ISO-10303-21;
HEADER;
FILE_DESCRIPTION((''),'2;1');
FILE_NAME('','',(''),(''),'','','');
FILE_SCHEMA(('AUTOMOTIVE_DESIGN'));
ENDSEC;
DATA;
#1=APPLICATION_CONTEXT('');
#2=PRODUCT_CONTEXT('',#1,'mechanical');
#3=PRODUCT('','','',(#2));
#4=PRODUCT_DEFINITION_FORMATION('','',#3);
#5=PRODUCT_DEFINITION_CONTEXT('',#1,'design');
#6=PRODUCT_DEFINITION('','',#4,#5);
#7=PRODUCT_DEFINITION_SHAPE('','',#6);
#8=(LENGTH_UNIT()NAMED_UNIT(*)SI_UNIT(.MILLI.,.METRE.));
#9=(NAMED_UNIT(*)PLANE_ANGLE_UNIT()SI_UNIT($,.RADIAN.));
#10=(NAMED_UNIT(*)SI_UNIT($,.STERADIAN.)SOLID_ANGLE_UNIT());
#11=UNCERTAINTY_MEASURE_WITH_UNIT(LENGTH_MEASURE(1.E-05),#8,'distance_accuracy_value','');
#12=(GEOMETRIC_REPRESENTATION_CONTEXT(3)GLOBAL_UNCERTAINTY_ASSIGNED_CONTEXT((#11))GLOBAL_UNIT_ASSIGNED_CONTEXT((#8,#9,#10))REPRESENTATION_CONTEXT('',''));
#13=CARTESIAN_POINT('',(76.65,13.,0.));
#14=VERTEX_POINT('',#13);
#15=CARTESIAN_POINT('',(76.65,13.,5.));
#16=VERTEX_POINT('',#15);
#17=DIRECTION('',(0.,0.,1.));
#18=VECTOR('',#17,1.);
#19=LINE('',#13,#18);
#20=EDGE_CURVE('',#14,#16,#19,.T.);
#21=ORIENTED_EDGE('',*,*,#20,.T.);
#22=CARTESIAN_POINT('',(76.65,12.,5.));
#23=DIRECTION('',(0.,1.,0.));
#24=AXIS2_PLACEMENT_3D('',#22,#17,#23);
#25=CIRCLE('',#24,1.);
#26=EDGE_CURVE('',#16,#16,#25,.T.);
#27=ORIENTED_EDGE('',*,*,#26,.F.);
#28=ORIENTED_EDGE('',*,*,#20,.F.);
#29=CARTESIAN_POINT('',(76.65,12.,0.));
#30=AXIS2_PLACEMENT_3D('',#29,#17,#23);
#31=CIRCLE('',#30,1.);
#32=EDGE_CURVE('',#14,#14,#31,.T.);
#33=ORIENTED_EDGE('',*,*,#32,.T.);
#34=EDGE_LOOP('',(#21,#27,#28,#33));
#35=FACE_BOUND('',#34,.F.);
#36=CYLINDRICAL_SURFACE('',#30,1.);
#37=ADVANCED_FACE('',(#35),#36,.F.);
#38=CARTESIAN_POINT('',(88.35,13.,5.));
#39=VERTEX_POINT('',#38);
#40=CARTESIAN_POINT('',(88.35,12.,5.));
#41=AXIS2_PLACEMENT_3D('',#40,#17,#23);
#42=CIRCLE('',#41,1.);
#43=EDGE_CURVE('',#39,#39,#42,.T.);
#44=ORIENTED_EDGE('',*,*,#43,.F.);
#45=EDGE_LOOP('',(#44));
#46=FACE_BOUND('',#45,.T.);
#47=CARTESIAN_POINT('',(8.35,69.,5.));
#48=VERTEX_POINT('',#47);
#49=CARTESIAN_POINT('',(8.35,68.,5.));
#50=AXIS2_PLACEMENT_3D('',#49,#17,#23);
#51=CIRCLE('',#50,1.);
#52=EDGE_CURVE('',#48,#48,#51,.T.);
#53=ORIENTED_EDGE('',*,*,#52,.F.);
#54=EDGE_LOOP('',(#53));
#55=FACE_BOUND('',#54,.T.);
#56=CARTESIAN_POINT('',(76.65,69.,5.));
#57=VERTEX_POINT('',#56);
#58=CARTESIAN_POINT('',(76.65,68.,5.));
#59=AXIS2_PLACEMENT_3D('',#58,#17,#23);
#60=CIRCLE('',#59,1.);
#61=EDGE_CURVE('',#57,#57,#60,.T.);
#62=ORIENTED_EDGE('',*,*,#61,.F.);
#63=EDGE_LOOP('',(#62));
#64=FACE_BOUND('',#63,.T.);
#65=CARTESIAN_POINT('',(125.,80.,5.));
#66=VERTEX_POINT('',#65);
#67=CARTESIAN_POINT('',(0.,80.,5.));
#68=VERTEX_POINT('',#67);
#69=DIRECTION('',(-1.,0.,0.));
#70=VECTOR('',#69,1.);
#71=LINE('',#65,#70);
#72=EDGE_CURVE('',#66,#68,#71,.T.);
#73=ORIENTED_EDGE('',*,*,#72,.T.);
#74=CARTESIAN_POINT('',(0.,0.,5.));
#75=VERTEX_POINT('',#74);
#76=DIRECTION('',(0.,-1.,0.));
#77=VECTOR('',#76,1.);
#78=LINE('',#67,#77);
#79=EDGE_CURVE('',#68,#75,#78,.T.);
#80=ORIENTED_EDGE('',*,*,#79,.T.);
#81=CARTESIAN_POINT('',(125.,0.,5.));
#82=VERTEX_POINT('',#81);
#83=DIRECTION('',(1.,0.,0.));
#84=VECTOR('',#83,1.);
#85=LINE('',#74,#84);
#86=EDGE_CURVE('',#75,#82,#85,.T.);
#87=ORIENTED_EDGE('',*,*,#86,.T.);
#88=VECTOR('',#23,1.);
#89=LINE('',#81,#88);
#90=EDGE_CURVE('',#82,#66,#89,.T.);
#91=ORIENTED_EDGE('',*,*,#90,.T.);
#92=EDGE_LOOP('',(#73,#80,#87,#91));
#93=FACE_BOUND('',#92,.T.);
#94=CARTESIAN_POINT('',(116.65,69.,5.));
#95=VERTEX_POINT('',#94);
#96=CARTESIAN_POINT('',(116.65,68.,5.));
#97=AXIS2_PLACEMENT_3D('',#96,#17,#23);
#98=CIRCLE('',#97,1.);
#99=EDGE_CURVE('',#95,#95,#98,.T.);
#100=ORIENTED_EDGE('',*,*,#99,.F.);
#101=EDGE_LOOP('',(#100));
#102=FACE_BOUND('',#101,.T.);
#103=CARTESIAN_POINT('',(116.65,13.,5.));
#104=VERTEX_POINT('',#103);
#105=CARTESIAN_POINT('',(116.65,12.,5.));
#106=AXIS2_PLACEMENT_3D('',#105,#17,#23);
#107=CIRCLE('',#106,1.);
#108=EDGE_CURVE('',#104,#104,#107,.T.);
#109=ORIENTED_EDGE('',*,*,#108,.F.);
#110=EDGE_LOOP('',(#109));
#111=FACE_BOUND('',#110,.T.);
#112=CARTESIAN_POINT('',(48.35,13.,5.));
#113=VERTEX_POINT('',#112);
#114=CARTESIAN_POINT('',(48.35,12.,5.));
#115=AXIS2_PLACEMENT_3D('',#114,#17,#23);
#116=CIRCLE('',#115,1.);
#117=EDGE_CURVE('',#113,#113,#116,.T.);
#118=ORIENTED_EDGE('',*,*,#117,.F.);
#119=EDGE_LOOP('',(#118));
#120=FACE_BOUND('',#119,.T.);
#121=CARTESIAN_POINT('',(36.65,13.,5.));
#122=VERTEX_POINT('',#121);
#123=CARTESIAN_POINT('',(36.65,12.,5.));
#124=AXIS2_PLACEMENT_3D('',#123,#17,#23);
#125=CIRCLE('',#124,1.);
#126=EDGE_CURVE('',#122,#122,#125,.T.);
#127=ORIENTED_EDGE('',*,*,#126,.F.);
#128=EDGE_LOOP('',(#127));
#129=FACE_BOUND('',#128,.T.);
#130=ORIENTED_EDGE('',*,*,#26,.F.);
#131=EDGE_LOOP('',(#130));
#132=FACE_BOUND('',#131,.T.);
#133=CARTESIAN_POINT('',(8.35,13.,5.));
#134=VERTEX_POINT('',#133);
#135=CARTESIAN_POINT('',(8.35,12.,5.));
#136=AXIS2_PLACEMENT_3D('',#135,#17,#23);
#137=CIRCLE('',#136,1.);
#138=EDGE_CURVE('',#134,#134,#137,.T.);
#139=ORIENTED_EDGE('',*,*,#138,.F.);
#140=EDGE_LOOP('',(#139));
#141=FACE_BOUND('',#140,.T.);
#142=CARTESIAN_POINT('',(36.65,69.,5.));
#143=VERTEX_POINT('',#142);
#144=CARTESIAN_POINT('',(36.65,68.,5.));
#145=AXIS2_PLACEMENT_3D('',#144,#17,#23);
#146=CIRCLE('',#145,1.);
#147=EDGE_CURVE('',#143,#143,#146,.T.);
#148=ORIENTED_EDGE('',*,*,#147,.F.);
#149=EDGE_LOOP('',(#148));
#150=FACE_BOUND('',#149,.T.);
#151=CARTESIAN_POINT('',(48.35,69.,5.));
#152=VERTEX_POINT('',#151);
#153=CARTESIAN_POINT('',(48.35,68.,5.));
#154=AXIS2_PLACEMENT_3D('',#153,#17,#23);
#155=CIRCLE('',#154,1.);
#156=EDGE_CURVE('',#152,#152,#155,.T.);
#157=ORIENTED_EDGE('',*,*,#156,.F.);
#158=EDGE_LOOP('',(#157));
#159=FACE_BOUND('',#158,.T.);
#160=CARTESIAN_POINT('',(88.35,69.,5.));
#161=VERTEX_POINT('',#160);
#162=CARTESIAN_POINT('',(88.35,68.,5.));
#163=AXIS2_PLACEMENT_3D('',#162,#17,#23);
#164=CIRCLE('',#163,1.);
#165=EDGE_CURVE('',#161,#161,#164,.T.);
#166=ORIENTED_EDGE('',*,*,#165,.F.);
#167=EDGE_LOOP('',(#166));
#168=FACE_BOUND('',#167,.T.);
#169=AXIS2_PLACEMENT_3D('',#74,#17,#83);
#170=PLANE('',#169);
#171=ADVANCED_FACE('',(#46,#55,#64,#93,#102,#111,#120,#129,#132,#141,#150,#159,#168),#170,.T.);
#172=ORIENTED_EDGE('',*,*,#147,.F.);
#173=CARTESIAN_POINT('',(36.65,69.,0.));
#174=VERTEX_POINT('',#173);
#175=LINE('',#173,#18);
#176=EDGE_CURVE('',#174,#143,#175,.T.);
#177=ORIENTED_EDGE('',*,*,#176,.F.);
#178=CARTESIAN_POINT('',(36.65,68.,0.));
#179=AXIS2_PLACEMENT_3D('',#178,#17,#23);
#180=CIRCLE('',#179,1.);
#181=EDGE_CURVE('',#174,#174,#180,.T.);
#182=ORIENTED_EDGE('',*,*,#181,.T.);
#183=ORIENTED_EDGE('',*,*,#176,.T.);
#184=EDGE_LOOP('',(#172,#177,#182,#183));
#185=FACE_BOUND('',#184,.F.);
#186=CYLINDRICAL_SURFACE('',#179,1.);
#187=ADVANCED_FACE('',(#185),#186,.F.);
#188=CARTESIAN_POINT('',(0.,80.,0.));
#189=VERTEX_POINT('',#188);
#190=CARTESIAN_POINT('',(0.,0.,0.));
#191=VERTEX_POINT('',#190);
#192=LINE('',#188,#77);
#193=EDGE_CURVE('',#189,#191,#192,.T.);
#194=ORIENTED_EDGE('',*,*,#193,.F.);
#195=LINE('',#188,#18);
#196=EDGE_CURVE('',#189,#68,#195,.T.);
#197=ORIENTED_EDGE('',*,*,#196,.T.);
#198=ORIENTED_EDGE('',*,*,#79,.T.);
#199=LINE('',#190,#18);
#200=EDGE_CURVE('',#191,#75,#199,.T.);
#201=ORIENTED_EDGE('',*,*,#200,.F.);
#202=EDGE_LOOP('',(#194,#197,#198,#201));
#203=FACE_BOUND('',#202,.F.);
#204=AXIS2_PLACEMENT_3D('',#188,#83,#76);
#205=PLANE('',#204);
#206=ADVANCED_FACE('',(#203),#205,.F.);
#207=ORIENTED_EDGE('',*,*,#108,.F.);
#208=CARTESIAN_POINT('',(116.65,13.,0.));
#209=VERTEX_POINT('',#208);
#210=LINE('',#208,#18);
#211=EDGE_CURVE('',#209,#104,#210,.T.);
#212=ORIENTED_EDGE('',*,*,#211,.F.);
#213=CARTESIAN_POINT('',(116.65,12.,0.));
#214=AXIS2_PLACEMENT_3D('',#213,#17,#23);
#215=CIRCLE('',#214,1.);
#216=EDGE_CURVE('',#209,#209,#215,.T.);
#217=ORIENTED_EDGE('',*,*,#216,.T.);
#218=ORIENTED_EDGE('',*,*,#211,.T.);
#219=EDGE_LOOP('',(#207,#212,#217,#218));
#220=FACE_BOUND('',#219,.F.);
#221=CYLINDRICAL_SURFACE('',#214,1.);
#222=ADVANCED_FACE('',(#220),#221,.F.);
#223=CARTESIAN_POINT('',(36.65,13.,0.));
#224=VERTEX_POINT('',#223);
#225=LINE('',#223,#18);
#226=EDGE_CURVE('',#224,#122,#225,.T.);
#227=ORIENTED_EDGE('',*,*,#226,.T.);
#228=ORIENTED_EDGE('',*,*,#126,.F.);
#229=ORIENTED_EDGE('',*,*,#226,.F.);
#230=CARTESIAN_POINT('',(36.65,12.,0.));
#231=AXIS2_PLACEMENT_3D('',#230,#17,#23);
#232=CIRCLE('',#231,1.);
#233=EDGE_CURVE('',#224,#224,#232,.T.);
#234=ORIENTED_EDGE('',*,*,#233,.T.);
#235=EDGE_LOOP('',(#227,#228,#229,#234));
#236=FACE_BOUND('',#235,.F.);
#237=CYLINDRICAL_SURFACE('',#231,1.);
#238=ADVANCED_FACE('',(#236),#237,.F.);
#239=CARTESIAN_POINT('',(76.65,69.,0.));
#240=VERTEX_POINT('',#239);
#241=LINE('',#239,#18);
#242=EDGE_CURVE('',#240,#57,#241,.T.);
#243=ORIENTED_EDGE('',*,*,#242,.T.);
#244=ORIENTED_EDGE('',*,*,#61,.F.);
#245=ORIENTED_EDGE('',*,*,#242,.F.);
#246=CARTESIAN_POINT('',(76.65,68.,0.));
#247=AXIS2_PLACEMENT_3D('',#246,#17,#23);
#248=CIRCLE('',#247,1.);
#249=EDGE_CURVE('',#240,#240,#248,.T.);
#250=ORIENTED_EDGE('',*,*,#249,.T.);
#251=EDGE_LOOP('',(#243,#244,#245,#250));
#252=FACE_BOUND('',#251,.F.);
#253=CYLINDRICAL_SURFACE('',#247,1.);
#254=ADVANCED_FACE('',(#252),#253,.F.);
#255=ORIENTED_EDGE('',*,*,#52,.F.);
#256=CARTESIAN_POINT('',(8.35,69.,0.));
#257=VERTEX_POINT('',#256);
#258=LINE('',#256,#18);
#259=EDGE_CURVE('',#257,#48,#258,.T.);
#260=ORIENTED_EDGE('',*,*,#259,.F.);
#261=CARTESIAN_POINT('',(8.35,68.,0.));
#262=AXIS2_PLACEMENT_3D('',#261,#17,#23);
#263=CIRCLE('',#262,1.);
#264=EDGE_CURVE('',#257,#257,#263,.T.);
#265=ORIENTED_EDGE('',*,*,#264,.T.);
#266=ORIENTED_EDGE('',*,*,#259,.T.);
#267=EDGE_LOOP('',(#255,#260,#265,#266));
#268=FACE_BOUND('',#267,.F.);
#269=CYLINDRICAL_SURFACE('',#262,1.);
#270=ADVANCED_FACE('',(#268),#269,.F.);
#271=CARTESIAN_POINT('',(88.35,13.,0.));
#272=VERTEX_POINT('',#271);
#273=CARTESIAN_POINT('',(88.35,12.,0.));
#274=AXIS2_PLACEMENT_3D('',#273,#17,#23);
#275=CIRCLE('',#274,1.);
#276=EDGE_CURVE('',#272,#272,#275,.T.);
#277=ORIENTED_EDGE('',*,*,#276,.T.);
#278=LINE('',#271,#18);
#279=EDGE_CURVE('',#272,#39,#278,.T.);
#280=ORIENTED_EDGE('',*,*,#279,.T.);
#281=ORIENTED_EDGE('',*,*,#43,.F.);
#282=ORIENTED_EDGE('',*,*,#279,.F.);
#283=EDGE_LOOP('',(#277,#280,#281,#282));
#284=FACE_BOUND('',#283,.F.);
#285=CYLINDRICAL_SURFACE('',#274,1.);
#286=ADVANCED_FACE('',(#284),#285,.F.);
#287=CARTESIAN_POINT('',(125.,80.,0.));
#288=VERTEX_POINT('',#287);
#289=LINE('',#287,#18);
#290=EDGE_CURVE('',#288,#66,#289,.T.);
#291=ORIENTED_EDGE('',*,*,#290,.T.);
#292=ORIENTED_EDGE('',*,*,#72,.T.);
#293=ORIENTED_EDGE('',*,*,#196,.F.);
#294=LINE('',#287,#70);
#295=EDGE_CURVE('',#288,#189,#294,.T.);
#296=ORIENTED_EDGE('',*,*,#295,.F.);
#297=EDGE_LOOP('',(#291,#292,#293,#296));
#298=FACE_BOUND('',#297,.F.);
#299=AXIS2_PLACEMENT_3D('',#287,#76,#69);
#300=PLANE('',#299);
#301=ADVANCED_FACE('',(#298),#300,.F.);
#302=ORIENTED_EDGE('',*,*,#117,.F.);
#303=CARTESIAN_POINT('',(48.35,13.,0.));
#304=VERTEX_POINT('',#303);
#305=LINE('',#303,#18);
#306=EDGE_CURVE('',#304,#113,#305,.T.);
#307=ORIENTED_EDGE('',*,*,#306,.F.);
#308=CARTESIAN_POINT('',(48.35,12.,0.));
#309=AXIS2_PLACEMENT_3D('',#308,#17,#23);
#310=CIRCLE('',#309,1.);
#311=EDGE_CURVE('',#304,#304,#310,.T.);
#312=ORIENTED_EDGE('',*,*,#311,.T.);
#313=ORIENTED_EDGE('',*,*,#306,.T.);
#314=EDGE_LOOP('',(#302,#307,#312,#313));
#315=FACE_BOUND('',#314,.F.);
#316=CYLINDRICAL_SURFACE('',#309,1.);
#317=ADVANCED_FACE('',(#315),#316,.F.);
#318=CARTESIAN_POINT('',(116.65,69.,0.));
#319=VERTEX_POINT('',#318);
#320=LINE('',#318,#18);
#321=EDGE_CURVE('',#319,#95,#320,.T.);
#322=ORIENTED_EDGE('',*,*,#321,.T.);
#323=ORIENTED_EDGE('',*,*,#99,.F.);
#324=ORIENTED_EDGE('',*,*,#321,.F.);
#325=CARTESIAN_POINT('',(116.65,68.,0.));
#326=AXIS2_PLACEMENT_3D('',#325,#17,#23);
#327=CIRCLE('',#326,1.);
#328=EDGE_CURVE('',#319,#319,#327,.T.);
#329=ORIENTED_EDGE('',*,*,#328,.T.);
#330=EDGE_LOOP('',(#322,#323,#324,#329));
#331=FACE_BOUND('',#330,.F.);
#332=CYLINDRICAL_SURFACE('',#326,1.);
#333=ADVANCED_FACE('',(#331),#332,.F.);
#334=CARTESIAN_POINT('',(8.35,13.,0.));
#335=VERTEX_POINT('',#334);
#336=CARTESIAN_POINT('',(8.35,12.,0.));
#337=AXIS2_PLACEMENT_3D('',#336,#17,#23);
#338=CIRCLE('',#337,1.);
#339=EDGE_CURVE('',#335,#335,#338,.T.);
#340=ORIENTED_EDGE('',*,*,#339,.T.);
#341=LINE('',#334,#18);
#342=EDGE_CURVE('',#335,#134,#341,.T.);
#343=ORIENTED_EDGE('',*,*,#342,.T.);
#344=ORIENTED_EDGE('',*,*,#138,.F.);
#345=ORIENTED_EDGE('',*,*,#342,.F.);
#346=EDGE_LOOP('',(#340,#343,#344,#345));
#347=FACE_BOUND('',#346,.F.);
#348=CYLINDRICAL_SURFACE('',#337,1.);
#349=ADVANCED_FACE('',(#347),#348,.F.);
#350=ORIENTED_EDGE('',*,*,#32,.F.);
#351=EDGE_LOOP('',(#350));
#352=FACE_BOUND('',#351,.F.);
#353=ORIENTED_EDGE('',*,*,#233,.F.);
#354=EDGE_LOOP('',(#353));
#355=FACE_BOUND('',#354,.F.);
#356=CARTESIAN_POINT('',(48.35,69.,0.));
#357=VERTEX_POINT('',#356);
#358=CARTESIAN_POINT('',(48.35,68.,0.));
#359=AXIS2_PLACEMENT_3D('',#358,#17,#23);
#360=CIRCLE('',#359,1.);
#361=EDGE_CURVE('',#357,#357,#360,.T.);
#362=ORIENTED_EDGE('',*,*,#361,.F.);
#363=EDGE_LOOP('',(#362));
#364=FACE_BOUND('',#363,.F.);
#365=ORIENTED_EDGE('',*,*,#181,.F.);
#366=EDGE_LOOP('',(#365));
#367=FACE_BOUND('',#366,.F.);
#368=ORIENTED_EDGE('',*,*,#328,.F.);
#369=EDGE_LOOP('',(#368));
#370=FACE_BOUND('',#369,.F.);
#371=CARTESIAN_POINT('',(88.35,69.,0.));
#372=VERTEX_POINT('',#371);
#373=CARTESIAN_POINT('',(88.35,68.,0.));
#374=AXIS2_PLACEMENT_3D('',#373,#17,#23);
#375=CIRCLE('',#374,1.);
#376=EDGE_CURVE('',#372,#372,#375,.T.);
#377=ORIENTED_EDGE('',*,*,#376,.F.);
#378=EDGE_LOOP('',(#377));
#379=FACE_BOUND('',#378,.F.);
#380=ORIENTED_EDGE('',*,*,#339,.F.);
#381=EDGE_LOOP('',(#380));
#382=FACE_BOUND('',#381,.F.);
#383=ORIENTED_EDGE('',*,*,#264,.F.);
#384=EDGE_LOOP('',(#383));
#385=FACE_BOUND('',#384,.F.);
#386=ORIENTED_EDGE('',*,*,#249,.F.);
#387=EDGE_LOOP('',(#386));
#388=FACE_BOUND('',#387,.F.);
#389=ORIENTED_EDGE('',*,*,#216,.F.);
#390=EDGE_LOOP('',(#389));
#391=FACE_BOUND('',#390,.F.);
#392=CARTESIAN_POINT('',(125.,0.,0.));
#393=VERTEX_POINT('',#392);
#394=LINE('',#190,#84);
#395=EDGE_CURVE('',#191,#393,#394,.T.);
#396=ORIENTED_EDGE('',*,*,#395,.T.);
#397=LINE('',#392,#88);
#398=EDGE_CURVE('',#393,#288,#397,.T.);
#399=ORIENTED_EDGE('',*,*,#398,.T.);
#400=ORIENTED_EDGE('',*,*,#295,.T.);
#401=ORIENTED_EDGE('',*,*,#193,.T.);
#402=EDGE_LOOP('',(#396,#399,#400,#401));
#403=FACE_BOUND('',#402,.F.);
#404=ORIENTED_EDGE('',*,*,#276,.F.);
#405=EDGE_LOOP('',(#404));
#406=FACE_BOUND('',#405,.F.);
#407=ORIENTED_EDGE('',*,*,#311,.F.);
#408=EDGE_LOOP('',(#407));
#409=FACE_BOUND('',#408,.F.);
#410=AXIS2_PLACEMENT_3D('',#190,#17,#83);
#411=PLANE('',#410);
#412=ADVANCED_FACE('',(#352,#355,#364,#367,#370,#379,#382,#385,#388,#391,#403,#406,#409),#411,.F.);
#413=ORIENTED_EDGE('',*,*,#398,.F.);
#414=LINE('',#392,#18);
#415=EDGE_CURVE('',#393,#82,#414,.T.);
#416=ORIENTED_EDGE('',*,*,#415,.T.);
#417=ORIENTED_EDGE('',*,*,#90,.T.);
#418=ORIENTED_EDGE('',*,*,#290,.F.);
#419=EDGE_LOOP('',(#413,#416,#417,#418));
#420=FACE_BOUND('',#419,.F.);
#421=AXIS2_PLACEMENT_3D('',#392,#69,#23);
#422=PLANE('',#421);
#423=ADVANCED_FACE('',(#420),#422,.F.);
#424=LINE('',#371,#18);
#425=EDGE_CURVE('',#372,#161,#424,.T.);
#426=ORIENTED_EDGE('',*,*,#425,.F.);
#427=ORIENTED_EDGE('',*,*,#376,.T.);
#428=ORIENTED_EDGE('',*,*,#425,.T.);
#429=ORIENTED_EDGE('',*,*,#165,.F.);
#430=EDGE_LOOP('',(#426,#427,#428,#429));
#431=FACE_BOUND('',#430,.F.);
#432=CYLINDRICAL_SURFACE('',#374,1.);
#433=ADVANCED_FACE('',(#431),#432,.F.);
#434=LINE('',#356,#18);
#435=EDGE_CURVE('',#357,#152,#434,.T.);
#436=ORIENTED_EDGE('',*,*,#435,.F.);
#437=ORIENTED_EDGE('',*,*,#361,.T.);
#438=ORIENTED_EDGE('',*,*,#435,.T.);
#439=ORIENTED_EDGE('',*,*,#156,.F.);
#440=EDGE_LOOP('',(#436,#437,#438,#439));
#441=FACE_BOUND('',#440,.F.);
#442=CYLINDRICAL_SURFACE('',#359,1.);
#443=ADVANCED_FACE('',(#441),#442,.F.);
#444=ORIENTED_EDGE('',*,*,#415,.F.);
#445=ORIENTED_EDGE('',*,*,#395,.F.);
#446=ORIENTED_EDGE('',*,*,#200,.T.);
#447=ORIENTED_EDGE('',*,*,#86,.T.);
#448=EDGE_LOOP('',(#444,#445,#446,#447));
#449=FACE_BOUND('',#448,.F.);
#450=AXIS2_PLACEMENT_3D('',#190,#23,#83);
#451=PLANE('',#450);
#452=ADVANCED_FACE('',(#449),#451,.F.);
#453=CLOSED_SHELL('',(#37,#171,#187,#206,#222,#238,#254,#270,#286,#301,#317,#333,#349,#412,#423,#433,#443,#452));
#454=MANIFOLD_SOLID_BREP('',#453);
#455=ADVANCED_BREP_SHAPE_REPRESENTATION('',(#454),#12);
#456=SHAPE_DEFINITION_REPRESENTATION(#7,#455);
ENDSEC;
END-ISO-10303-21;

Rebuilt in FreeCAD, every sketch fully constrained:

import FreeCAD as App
import Part
import Sketcher

V = App.Vector


def add_polygon(sketch, points):
    """Adds a closed chain of lines whose ends are joined by coincident constraints."""
    first, n = sketch.GeometryCount, len(points)
    for a, b in zip(points, points[1:] + points[:1]):
        sketch.addGeometry(Part.LineSegment(App.Vector(*a, 0), App.Vector(*b, 0)), False)
    for i in range(n):
        sketch.addConstraint(Sketcher.Constraint("Coincident", first + i, 2, first + (i + 1) % n, 1))

doc = App.newDocument("Part")
body = doc.addObject("PartDesign::Body", "Body")

# Sketch on XY plane
sketch1 = doc.addObject("Sketcher::SketchObject", "Sketch")
body.addObject(sketch1)
sketch1.AttachmentSupport = (doc.XY_Plane, [""])
sketch1.MapMode = "FlatFace"
add_polygon(sketch1, [(0, 80), (0, 0), (125, 0), (125, 80)])  # lines 0-3
sketch1.addConstraint(Sketcher.Constraint("Vertical", 0))
sketch1.addConstraint(Sketcher.Constraint("Horizontal", 1))
sketch1.addConstraint(Sketcher.Constraint("Vertical", 2))
sketch1.addConstraint(Sketcher.Constraint("Horizontal", 3))
sketch1.addConstraint(Sketcher.Constraint("Coincident", 0, 2, -1, 1))
sketch1.addConstraint(Sketcher.Constraint("DistanceX", 1, 1, 1, 2, 125.0))
sketch1.addConstraint(Sketcher.Constraint("DistanceY", 0, 2, 0, 1, 80.0))
pad1 = doc.addObject("PartDesign::Pad", "Pad")
body.addObject(pad1)
pad1.Profile = sketch1
pad1.Length = 5

# Sketch on XY plane
sketch2 = doc.addObject("Sketcher::SketchObject", "Sketch001")
body.addObject(sketch2)
sketch2.AttachmentSupport = (doc.XY_Plane, [""])
sketch2.MapMode = "FlatFace"
sketch2.addGeometry(Part.Circle(V(8.3, 68, 0), V(0, 0, 1), 1), False)
sketch2.addGeometry(Part.Circle(V(36.6, 68, 0), V(0, 0, 1), 1), False)
sketch2.addGeometry(Part.Circle(V(8.3, 12, 0), V(0, 0, 1), 1), False)
sketch2.addGeometry(Part.Circle(V(36.6, 12, 0), V(0, 0, 1), 1), False)
sketch2.addGeometry(Part.Circle(V(76.7, 12, 0), V(0, 0, 1), 1), False)
sketch2.addGeometry(Part.Circle(V(76.7, 68, 0), V(0, 0, 1), 1), False)
sketch2.addGeometry(Part.Circle(V(48.4, 68, 0), V(0, 0, 1), 1), False)
sketch2.addGeometry(Part.Circle(V(48.4, 12, 0), V(0, 0, 1), 1), False)
sketch2.addGeometry(Part.Circle(V(116.7, 12, 0), V(0, 0, 1), 1), False)
sketch2.addGeometry(Part.Circle(V(116.7, 68, 0), V(0, 0, 1), 1), False)
sketch2.addGeometry(Part.Circle(V(88.3, 12, 0), V(0, 0, 1), 1), False)
sketch2.addGeometry(Part.Circle(V(88.3, 68, 0), V(0, 0, 1), 1), False)
sketch2.addConstraint(Sketcher.Constraint("Equal", 0, 1))
sketch2.addConstraint(Sketcher.Constraint("Equal", 1, 2))
sketch2.addConstraint(Sketcher.Constraint("Equal", 2, 3))
sketch2.addConstraint(Sketcher.Constraint("Equal", 3, 4))
sketch2.addConstraint(Sketcher.Constraint("Equal", 4, 5))
sketch2.addConstraint(Sketcher.Constraint("Equal", 5, 6))
sketch2.addConstraint(Sketcher.Constraint("Equal", 6, 7))
sketch2.addConstraint(Sketcher.Constraint("Equal", 7, 8))
sketch2.addConstraint(Sketcher.Constraint("Equal", 8, 9))
sketch2.addConstraint(Sketcher.Constraint("Equal", 9, 10))
sketch2.addConstraint(Sketcher.Constraint("Equal", 10, 11))
sketch2.addConstraint(Sketcher.Constraint("Horizontal", 0, 3, 1, 3))
sketch2.addConstraint(Sketcher.Constraint("Horizontal", 2, 3, 3, 3))
sketch2.addConstraint(Sketcher.Constraint("Horizontal", 3, 3, 4, 3))
sketch2.addConstraint(Sketcher.Constraint("Horizontal", 1, 3, 5, 3))
sketch2.addConstraint(Sketcher.Constraint("Horizontal", 5, 3, 6, 3))
sketch2.addConstraint(Sketcher.Constraint("Horizontal", 4, 3, 7, 3))
sketch2.addConstraint(Sketcher.Constraint("Horizontal", 7, 3, 8, 3))
sketch2.addConstraint(Sketcher.Constraint("Horizontal", 6, 3, 9, 3))
sketch2.addConstraint(Sketcher.Constraint("Horizontal", 8, 3, 10, 3))
sketch2.addConstraint(Sketcher.Constraint("Horizontal", 9, 3, 11, 3))
sketch2.addConstraint(Sketcher.Constraint("Vertical", 0, 3, 2, 3))
sketch2.addConstraint(Sketcher.Constraint("Vertical", 1, 3, 3, 3))
sketch2.addConstraint(Sketcher.Constraint("Vertical", 4, 3, 5, 3))
sketch2.addConstraint(Sketcher.Constraint("Vertical", 6, 3, 7, 3))
sketch2.addConstraint(Sketcher.Constraint("Vertical", 8, 3, 9, 3))
sketch2.addConstraint(Sketcher.Constraint("Vertical", 10, 3, 11, 3))
sketch2.addConstraint(Sketcher.Constraint("Diameter", 0, 2.0))
sketch2.addConstraint(Sketcher.Constraint("DistanceY", -1, 1, 0, 3, 68.0))
sketch2.addConstraint(Sketcher.Constraint("DistanceY", -1, 1, 2, 3, 12.0))
sketch2.addConstraint(Sketcher.Constraint("DistanceX", 3, 3, 4, 3, 40.0))
sketch2.addConstraint(Sketcher.Constraint("DistanceX", 0, 3, 6, 3, 40.0))
sketch2.addConstraint(Sketcher.Constraint("DistanceX", 4, 3, 8, 3, 40.0))
sketch2.addConstraint(Sketcher.Constraint("DistanceX", 7, 3, 10, 3, 40.0))
sketch2.addConstraint(Sketcher.Constraint("DistanceX", 0, 3, 1, 3, 28.3))
sketch2.addConstraint(Sketcher.Constraint("DistanceX", -1, 1, 0, 3, 8.35))
doc.recompute()
hole = doc.addObject("PartDesign::Hole", "Hole")
body.addObject(hole)
hole.Profile = sketch2
hole.ThreadType = "None"
hole.Diameter = 2
hole.DepthType = "ThroughAll"
hole.Reversed = True

doc.recompute()
